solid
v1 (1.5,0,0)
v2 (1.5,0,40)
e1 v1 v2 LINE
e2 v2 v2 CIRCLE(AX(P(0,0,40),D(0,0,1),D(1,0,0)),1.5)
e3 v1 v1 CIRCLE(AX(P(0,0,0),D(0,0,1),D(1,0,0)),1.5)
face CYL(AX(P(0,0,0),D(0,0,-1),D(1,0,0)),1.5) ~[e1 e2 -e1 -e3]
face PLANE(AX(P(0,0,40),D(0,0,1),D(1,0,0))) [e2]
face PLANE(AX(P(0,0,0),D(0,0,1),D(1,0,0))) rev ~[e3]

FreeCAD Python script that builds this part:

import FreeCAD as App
import Part
import Sketcher

V = App.Vector
Q = App.Units.Quantity

doc = App.newDocument("Part")
body = doc.addObject("PartDesign::Body", "Body")

# Sketch on XY plane
sketch1 = body.newObject("Sketcher::SketchObject", "Sketch")
sketch1.AttachmentSupport = (doc.getObject("XY_Plane"), [""])
sketch1.MapMode = "FlatFace"
sketch1.addGeometry(Part.Circle(V(0, 0, 0), V(0, 0, 1), 1.5), False)
sketch1.addConstraint([
    Sketcher.Constraint("Coincident", 0, 3, -1, 1),
    Sketcher.Constraint("Diameter", 0, Q("3 mm")),
])
pad1 = body.newObject("PartDesign::Pad", "Pad")
pad1.Profile = sketch1
pad1.Length = 40

doc.recompute()
